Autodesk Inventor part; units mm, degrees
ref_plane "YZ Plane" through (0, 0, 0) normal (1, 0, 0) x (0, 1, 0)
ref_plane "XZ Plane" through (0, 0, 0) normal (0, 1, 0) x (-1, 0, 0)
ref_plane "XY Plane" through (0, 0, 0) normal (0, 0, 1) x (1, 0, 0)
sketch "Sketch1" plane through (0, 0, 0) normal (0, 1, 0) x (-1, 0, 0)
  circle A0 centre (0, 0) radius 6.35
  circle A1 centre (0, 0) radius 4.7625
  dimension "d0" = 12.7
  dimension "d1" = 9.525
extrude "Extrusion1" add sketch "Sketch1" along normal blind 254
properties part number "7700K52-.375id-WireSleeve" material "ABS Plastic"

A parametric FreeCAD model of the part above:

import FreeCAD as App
import Part
import Sketcher
from FreeCAD import Vector
Q = App.Units.Quantity

doc = App.newDocument("Part")
body = doc.addObject("PartDesign::Body", "Body")

sketch1 = body.newObject("Sketcher::SketchObject", "Sketch")
sketch1.AttachmentSupport = (doc.getObject("XZ_Plane"), [""])
sketch1.MapMode = "FlatFace"
sketch1.addGeometry(Part.Circle(Vector(0, 0, 0), Vector(0, 0, 1), 6.35), False)
sketch1.addGeometry(Part.Circle(Vector(0, 0, 0), Vector(0, 0, 1), 4.7625), False)
sketch1.addConstraint(Sketcher.Constraint("Coincident", 0, 3, -1, 1))
sketch1.addConstraint(Sketcher.Constraint("Coincident", 1, 3, -1, 1))
sketch1.addConstraint(Sketcher.Constraint("Diameter", 0, Q("0.5 in")))
sketch1.addConstraint(Sketcher.Constraint("Diameter", 1, Q("0.375 in")))
pad1 = body.newObject("PartDesign::Pad", "Pad")
pad1.Profile = sketch1
pad1.Length = Q("10 in")
pad1.Reversed = True

doc.recompute()
